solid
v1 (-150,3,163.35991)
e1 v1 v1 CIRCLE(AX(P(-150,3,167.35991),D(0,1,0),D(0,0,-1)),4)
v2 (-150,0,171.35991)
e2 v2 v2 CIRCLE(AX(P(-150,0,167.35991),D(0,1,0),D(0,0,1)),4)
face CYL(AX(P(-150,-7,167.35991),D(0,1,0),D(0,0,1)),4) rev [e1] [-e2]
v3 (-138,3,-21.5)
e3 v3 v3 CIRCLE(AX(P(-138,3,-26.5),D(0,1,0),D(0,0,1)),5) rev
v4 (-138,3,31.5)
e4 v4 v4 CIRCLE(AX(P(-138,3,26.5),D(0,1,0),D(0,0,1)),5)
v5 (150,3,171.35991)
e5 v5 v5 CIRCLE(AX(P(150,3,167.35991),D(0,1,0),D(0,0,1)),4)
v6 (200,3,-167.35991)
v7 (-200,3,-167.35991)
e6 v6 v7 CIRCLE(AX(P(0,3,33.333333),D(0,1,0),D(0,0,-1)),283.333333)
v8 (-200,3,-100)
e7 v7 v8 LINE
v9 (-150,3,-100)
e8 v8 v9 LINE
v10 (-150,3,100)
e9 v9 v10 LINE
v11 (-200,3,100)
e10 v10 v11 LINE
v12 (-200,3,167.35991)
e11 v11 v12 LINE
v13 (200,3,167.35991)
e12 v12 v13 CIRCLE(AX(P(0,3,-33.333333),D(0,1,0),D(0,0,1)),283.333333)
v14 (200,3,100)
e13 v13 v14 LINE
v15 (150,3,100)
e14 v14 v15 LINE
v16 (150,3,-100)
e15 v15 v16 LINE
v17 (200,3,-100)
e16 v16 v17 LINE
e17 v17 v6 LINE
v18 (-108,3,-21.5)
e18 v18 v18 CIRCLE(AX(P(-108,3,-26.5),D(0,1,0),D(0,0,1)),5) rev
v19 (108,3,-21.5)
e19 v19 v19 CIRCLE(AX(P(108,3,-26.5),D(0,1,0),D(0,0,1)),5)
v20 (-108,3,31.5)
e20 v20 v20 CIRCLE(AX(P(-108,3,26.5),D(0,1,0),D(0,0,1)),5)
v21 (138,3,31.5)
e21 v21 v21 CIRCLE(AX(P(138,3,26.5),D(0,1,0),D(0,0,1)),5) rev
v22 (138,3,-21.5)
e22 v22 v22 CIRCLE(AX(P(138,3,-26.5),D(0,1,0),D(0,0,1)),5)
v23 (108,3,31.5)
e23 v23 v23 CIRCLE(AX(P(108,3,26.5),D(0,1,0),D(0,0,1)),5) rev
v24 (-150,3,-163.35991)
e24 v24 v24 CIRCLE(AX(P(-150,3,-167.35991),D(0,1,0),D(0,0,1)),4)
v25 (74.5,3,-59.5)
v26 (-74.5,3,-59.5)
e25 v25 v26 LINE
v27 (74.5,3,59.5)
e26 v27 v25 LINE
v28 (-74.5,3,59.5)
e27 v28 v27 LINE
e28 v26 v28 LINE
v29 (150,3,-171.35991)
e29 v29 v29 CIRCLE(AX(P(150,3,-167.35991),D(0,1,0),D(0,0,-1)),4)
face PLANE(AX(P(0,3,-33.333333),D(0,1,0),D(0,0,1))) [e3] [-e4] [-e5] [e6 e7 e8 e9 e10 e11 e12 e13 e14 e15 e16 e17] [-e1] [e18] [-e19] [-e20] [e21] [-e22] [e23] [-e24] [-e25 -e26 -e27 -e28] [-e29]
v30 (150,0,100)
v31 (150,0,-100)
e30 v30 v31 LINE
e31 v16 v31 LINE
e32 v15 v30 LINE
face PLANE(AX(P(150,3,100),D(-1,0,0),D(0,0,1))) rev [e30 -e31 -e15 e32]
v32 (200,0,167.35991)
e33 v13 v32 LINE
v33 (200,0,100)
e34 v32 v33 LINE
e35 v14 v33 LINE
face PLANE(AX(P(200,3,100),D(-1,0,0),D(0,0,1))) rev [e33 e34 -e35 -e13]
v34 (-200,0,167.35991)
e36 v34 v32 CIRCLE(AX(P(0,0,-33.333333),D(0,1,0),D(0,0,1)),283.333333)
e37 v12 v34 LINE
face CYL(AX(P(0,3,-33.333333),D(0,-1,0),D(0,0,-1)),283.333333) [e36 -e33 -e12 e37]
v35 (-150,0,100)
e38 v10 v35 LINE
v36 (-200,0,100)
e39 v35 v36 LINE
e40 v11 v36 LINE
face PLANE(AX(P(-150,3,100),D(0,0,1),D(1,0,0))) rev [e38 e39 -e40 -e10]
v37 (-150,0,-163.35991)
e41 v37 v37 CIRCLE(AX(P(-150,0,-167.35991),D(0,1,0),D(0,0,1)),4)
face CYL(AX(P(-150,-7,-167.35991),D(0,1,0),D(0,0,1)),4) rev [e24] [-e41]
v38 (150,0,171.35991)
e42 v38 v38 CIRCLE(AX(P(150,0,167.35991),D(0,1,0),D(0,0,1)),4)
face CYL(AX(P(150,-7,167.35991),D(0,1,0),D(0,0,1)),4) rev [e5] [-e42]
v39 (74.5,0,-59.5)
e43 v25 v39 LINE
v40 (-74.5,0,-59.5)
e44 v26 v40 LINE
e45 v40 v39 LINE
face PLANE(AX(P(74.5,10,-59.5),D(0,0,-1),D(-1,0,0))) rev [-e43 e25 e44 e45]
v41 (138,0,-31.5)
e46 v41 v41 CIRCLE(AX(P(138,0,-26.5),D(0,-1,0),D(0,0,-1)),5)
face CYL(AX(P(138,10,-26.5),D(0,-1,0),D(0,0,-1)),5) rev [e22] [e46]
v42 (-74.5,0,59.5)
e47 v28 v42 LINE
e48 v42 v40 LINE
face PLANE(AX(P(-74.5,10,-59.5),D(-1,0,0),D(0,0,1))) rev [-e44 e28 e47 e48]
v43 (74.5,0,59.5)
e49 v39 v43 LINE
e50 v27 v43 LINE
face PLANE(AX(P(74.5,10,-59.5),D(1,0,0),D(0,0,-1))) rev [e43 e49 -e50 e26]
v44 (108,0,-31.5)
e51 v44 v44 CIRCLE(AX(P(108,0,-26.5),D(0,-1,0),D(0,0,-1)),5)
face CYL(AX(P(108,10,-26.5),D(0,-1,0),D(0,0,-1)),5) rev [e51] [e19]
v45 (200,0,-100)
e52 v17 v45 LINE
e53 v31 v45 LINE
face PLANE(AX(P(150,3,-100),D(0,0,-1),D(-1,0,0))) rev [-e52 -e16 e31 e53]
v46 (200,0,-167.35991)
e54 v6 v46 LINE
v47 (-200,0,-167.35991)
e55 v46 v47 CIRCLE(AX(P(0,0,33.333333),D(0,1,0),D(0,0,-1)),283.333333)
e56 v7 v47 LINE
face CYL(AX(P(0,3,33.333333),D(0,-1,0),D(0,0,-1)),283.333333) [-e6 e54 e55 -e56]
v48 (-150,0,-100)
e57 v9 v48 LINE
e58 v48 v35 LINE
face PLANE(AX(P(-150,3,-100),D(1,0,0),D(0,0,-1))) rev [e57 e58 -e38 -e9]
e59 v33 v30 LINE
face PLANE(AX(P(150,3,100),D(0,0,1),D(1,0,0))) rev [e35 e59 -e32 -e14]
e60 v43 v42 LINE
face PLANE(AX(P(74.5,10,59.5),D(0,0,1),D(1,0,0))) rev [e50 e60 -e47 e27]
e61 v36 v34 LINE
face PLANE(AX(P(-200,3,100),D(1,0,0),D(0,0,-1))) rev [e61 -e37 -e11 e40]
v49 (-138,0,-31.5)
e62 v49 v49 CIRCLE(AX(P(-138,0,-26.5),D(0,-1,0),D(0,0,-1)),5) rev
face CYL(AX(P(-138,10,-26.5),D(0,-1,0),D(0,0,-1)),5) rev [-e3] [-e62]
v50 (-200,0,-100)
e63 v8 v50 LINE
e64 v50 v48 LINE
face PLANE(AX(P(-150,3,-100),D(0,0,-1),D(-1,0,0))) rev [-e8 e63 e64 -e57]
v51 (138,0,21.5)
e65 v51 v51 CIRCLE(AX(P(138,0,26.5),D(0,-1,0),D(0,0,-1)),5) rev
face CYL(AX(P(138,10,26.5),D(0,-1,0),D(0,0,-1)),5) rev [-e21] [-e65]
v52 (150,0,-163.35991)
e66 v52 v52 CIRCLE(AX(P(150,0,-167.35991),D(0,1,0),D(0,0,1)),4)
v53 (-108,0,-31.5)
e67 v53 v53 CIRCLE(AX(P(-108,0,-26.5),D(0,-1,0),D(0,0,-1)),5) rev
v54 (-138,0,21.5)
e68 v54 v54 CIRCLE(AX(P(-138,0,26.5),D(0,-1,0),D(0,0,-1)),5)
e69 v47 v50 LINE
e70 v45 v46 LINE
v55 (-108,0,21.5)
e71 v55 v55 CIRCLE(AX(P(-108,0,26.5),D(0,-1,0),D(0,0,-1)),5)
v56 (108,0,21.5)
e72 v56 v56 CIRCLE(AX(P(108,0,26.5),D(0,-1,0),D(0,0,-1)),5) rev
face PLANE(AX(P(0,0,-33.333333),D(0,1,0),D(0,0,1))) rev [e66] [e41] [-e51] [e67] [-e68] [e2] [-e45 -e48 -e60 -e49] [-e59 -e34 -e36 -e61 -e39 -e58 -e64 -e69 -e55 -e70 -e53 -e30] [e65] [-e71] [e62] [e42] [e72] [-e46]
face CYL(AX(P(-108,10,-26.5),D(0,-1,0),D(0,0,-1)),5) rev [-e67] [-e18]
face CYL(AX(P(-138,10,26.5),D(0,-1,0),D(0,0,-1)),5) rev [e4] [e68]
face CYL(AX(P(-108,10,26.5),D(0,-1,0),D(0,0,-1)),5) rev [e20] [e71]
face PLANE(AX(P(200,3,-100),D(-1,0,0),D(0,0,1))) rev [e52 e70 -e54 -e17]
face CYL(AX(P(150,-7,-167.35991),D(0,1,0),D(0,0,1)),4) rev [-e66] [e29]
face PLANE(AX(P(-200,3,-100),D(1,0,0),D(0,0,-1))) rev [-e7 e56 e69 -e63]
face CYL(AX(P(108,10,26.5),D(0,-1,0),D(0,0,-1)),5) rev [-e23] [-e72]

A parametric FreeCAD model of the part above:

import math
import FreeCAD as App
import Part
import Sketcher
Q = App.Units.Quantity

doc = App.newDocument("Part")
body = doc.addObject("PartDesign::Body", "Body")

sketch1 = body.newObject("Sketcher::SketchObject", "Sketch")
sketch1.AttachmentSupport = (doc.getObject("XZ_Plane"), [""])
sketch1.MapMode = "FlatFace"
sketch1.addGeometry([
    Part.LineSegment(App.Vector(-200, -100, 0), App.Vector(-150, -100, 0)),
    Part.LineSegment(App.Vector(-150, -100, 0), App.Vector(-150, 100, 0)),
    Part.LineSegment(App.Vector(-150, 100, 0), App.Vector(-200, 100, 0)),
    Part.LineSegment(App.Vector(-200, 100, 0), App.Vector(-200, 167, 0)),
    Part.ArcOfCircle(Part.Circle(App.Vector(0, -33, 0), App.Vector(0, 0, 1), 283), math.radians(45), math.radians(135)),
    Part.LineSegment(App.Vector(200, 167, 0), App.Vector(200, 100, 0)),
    Part.LineSegment(App.Vector(200, 100, 0), App.Vector(150, 100, 0)),
    Part.LineSegment(App.Vector(150, 100, 0), App.Vector(150, -100, 0)),
    Part.LineSegment(App.Vector(150, -100, 0), App.Vector(200, -100, 0)),
    Part.LineSegment(App.Vector(200, -100, 0), App.Vector(200, -167, 0)),
    Part.ArcOfCircle(Part.Circle(App.Vector(0, 33, 0), App.Vector(0, 0, 1), 283), math.radians(-135), math.radians(-45)),
    Part.LineSegment(App.Vector(-200, -167, 0), App.Vector(-200, -100, 0)),
], False)
sketch1.addConstraint([
    Sketcher.Constraint("Coincident", 0, 2, 1, 1),
    Sketcher.Constraint("Coincident", 1, 2, 2, 1),
    Sketcher.Constraint("Coincident", 2, 2, 3, 1),
    Sketcher.Constraint("Coincident", 3, 2, 4, 2),
    Sketcher.Constraint("Coincident", 4, 1, 5, 1),
    Sketcher.Constraint("Coincident", 5, 2, 6, 1),
    Sketcher.Constraint("Coincident", 6, 2, 7, 1),
    Sketcher.Constraint("Coincident", 7, 2, 8, 1),
    Sketcher.Constraint("Coincident", 8, 2, 9, 1),
    Sketcher.Constraint("Coincident", 9, 2, 10, 2),
    Sketcher.Constraint("Coincident", 10, 1, 11, 1),
    Sketcher.Constraint("Coincident", 11, 2, 0, 1),
    Sketcher.Constraint("Horizontal", 0),
    Sketcher.Constraint("Vertical", 1),
    Sketcher.Constraint("Horizontal", 2),
    Sketcher.Constraint("Vertical", 3),
    Sketcher.Constraint("Vertical", 5),
    Sketcher.Constraint("Horizontal", 6),
    Sketcher.Constraint("Vertical", 7),
    Sketcher.Constraint("Horizontal", 8),
    Sketcher.Constraint("Vertical", 9),
    Sketcher.Constraint("Vertical", 11),
    Sketcher.Constraint("Equal", 4, 10),
    Sketcher.Constraint("Symmetric", 4, 3, 10, 3, -1, 1),
    Sketcher.Constraint("Symmetric", 0, 2, 6, 2, -1, 1),
    Sketcher.Constraint("Symmetric", 2, 2, 8, 2, -1, 1),
    Sketcher.Constraint("Symmetric", 3, 2, 4, 1, -2),
    Sketcher.Constraint("Symmetric", 8, 2, 11, 2, -2),
    Sketcher.Constraint("DistanceX", 0, 1, 0, 2, Q("50 mm")),
    Sketcher.Constraint("DistanceY", 1, 1, 1, 2, Q("200 mm")),
    Sketcher.Constraint("DistanceX", 0, 2, -1, 1, Q("150 mm")),
    Sketcher.Constraint("Radius", 4, Q("283.333333 mm")),
    Sketcher.Constraint("DistanceY", 3, 1, 3, 2, Q("67.35991 mm")),
])
pad1 = body.newObject("PartDesign::Pad", "Pad")
pad1.Profile = sketch1
pad1.Length = 3
pad1.Reversed = True

sketch2 = body.newObject("Sketcher::SketchObject", "Sketch001")
sketch2.AttachmentSupport = (doc.getObject("XZ_Plane"), [""])
sketch2.MapMode = "FlatFace"
sketch2.AttachmentOffset = App.Placement(App.Vector(0, 0, -3), App.Rotation())
sketch2.addGeometry([
    Part.Circle(App.Vector(-150, -167.4, 0), App.Vector(0, 0, 1), 4),
    Part.Circle(App.Vector(150, -167.4, 0), App.Vector(0, 0, 1), 4),
    Part.Circle(App.Vector(150, 167.4, 0), App.Vector(0, 0, 1), 4),
    Part.Circle(App.Vector(-150, 167.4, 0), App.Vector(0, 0, 1), 4),
], False)
sketch2.addConstraint([
    Sketcher.Constraint("Equal", 0, 1),
    Sketcher.Constraint("Equal", 1, 2),
    Sketcher.Constraint("Equal", 2, 3),
    Sketcher.Constraint("Symmetric", 0, 3, 2, 3, -1, 1),
    Sketcher.Constraint("Symmetric", 1, 3, 3, 3, -1, 1),
    Sketcher.Constraint("Symmetric", 0, 3, 1, 3, -2),
    Sketcher.Constraint("Diameter", 0, Q("8 mm")),
    Sketcher.Constraint("DistanceX", 0, 3, -1, 1, Q("150 mm")),
    Sketcher.Constraint("DistanceY", 0, 3, -1, 1, Q("167.35991 mm")),
])
pocket1 = body.newObject("PartDesign::Pocket", "Pocket")
pocket1.Profile = sketch2
pocket1.Length = 10
pocket1.Reversed = True

sketch3 = body.newObject("Sketcher::SketchObject", "Sketch002")
sketch3.AttachmentSupport = (doc.getObject("XZ_Plane"), [""])
sketch3.MapMode = "FlatFace"
sketch3.addGeometry([
    Part.LineSegment(App.Vector(-74, 60, 0), App.Vector(-74, -60, 0)),
    Part.LineSegment(App.Vector(-74, -60, 0), App.Vector(74, -60, 0)),
    Part.LineSegment(App.Vector(74, -60, 0), App.Vector(74, 60, 0)),
    Part.LineSegment(App.Vector(74, 60, 0), App.Vector(-74, 60, 0)),
], False)
sketch3.addConstraint([
    Sketcher.Constraint("Coincident", 0, 2, 1, 1),
    Sketcher.Constraint("Coincident", 1, 2, 2, 1),
    Sketcher.Constraint("Coincident", 2, 2, 3, 1),
    Sketcher.Constraint("Coincident", 3, 2, 0, 1),
    Sketcher.Constraint("Vertical", 0),
    Sketcher.Constraint("Horizontal", 1),
    Sketcher.Constraint("Vertical", 2),
    Sketcher.Constraint("Horizontal", 3),
    Sketcher.Constraint("Symmetric", 0, 2, 2, 2, -1, 1),
    Sketcher.Constraint("DistanceX", 1, 1, 1, 2, Q("149 mm")),
    Sketcher.Constraint("DistanceY", 0, 2, 0, 1, Q("119 mm")),
])
pocket2 = body.newObject("PartDesign::Pocket", "Pocket001")
pocket2.Profile = sketch3
pocket2.Length = 10

sketch4 = body.newObject("Sketcher::SketchObject", "Sketch003")
sketch4.AttachmentSupport = (doc.getObject("XZ_Plane"), [""])
sketch4.MapMode = "FlatFace"
sketch4.addGeometry([
    Part.Circle(App.Vector(-138, 26, 0), App.Vector(0, 0, 1), 5),
    Part.Circle(App.Vector(-108, 26, 0), App.Vector(0, 0, 1), 5),
    Part.Circle(App.Vector(108, 26, 0), App.Vector(0, 0, 1), 5),
    Part.Circle(App.Vector(138, 26, 0), App.Vector(0, 0, 1), 5),
    Part.Circle(App.Vector(108, -26, 0), App.Vector(0, 0, 1), 5),
    Part.Circle(App.Vector(138, -26, 0), App.Vector(0, 0, 1), 5),
    Part.Circle(App.Vector(-138, -26, 0), App.Vector(0, 0, 1), 5),
    Part.Circle(App.Vector(-108, -26, 0), App.Vector(0, 0, 1), 5),
], False)
sketch4.addConstraint([
    Sketcher.Constraint("Equal", 0, 1),
    Sketcher.Constraint("Equal", 1, 2),
    Sketcher.Constraint("Equal", 2, 3),
    Sketcher.Constraint("Equal", 3, 4),
    Sketcher.Constraint("Equal", 4, 5),
    Sketcher.Constraint("Equal", 5, 6),
    Sketcher.Constraint("Equal", 6, 7),
    Sketcher.Constraint("Symmetric", 1, 3, 4, 3, -1, 1),
    Sketcher.Constraint("Symmetric", 0, 3, 5, 3, -1, 1),
    Sketcher.Constraint("Symmetric", 3, 3, 6, 3, -1, 1),
    Sketcher.Constraint("Symmetric", 2, 3, 7, 3, -1, 1),
    Sketcher.Constraint("Symmetric", 1, 3, 2, 3, -2),
    Sketcher.Constraint("Symmetric", 0, 3, 3, 3, -2),
    Sketcher.Constraint("Horizontal", 0, 3, 1, 3),
    Sketcher.Constraint("Diameter", 0, Q("10 mm")),
    Sketcher.Constraint("DistanceX", 0, 3, -1, 1, Q("138 mm")),
    Sketcher.Constraint("DistanceX", 1, 3, -1, 1, Q("108 mm")),
    Sketcher.Constraint("DistanceY", 4, 3, 2, 3, Q("53 mm")),
])
pocket3 = body.newObject("PartDesign::Pocket", "Pocket002")
pocket3.Profile = sketch4
pocket3.Length = 10

doc.recompute()
